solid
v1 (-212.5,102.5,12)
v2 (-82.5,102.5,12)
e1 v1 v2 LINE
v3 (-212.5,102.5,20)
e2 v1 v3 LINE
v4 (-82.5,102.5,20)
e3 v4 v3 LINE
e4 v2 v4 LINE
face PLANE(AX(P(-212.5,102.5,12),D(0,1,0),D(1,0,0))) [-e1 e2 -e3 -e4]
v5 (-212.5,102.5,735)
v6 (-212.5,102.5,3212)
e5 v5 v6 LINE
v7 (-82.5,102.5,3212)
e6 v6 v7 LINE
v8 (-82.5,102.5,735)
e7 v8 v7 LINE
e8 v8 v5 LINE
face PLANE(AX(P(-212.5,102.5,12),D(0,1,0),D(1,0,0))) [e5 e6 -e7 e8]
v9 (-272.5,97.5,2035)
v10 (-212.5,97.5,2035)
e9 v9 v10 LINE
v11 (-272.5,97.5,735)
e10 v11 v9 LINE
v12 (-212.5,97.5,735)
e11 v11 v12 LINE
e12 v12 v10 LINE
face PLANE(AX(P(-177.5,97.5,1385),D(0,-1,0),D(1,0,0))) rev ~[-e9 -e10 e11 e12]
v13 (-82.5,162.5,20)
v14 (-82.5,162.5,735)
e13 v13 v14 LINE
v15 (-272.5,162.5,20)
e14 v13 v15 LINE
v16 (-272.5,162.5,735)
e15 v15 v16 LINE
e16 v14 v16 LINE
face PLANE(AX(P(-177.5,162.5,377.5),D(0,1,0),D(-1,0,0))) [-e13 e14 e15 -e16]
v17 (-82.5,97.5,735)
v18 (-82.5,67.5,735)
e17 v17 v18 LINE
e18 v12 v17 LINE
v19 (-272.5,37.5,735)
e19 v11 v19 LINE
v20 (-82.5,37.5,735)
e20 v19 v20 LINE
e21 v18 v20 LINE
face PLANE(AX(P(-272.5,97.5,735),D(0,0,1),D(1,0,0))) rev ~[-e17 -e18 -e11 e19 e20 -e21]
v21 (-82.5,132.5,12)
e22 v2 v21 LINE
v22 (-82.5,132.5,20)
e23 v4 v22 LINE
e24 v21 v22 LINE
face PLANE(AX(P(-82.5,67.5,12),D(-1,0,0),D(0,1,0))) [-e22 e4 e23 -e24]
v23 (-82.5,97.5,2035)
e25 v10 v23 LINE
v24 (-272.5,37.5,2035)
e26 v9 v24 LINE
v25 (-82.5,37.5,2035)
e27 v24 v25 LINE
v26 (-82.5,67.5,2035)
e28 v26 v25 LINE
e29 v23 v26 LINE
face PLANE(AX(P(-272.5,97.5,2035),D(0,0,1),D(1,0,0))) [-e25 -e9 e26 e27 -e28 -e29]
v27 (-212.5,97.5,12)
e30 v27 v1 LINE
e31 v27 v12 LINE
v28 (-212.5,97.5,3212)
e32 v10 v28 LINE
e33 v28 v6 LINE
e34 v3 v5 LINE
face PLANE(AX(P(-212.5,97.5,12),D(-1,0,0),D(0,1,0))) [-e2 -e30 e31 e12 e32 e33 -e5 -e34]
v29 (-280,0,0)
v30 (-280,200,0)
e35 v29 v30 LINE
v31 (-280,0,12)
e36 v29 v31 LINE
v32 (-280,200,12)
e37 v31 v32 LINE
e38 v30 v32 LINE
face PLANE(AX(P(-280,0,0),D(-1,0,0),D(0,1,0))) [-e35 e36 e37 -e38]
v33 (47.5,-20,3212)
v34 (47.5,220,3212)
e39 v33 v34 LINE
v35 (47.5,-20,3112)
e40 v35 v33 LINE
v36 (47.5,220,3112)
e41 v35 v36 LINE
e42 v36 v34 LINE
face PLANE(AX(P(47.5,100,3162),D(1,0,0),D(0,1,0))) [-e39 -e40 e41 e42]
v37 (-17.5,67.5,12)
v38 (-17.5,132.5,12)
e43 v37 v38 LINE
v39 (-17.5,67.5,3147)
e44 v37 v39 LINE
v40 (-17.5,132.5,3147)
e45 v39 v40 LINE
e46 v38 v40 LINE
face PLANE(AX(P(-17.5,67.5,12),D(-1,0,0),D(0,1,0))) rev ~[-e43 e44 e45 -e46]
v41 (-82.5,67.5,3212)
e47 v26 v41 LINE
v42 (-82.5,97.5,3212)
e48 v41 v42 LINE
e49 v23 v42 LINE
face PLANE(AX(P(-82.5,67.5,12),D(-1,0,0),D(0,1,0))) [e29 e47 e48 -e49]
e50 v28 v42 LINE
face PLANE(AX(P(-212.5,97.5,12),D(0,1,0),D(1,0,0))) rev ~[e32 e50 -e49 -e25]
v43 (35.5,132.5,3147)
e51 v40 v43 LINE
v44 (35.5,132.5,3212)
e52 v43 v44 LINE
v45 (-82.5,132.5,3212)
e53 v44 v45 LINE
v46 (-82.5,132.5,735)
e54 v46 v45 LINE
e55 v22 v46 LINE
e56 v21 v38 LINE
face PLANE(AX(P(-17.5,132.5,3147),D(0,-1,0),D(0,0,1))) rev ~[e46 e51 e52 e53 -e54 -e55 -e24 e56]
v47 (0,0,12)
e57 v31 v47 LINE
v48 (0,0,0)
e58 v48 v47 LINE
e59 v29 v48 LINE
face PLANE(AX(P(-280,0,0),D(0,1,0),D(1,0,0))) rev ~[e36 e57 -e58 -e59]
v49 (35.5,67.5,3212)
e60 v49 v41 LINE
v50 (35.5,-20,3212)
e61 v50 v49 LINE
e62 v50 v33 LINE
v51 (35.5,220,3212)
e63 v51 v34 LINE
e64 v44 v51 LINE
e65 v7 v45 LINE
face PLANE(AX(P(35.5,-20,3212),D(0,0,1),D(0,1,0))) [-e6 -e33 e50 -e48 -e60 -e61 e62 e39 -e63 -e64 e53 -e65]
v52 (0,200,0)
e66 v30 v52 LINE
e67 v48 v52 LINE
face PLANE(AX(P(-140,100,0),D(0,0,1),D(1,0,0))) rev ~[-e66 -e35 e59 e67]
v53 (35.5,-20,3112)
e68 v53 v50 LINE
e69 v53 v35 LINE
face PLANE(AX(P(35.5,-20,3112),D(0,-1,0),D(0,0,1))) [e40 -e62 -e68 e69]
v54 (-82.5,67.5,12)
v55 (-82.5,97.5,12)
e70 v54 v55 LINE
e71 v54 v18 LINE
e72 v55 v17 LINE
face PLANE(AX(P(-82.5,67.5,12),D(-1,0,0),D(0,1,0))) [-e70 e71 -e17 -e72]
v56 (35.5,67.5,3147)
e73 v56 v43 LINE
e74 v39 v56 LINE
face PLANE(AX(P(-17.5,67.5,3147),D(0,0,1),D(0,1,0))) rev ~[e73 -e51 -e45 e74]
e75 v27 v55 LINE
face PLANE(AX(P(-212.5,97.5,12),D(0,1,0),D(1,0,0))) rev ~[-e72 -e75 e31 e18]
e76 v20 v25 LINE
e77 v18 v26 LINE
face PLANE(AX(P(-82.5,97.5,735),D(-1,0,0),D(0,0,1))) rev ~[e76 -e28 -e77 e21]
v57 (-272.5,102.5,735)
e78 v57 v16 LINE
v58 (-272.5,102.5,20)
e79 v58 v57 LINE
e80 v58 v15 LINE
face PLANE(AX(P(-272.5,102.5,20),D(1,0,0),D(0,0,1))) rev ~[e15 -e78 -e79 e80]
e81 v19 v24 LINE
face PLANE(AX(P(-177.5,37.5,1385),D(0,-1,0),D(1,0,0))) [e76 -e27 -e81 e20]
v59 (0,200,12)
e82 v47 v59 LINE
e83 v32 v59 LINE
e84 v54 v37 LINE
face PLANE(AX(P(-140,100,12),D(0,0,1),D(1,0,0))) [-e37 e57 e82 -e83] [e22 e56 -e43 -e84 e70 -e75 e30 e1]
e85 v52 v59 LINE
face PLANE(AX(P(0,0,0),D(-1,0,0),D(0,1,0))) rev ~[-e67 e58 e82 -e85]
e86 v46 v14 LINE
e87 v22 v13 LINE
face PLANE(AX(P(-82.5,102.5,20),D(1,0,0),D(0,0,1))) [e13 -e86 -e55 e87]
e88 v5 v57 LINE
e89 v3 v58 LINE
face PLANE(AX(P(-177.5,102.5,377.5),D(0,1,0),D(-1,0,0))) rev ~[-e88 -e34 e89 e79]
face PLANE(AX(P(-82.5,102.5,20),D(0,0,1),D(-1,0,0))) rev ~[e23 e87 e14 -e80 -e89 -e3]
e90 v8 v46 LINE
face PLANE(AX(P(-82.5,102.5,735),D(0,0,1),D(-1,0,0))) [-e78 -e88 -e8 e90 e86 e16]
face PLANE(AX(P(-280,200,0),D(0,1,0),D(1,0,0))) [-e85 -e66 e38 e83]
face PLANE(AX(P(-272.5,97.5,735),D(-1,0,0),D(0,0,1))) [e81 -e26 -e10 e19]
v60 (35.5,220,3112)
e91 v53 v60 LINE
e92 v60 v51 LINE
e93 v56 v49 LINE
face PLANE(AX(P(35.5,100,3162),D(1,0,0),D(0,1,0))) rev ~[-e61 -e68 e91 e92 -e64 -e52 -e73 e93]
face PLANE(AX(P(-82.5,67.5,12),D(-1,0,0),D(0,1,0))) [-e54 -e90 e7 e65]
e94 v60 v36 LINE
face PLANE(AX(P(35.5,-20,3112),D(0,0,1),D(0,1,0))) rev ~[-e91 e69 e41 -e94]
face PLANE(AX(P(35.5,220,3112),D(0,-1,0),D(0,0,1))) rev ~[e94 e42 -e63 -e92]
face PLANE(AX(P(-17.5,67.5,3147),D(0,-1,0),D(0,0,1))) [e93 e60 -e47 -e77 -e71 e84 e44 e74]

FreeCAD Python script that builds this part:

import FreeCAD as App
import Part
import Sketcher
Q = App.Units.Quantity

doc = App.newDocument("Part")
body = doc.addObject("PartDesign::Body", "Body")

# Sketch on XY plane
sketch1 = body.newObject("Sketcher::SketchObject", "Sketch")
sketch1.AttachmentSupport = (doc.getObject("XY_Plane"), [""])
sketch1.MapMode = "FlatFace"
sketch1.addGeometry(Part.LineSegment(App.Vector(-280, 200, 0), App.Vector(-280, 0, 0)), False)
sketch1.addGeometry(Part.LineSegment(App.Vector(-280, 0, 0), App.Vector(0, 0, 0)), False)
sketch1.addGeometry(Part.LineSegment(App.Vector(0, 0, 0), App.Vector(0, 200, 0)), False)
sketch1.addGeometry(Part.LineSegment(App.Vector(0, 200, 0), App.Vector(-280, 200, 0)), False)
sketch1.addConstraint(Sketcher.Constraint("Coincident", 0, 2, 1, 1))
sketch1.addConstraint(Sketcher.Constraint("Coincident", 1, 2, 2, 1))
sketch1.addConstraint(Sketcher.Constraint("Coincident", 2, 2, 3, 1))
sketch1.addConstraint(Sketcher.Constraint("Coincident", 3, 2, 0, 1))
sketch1.addConstraint(Sketcher.Constraint("Vertical", 0))
sketch1.addConstraint(Sketcher.Constraint("Horizontal", 1))
sketch1.addConstraint(Sketcher.Constraint("Vertical", 2))
sketch1.addConstraint(Sketcher.Constraint("Horizontal", 3))
sketch1.addConstraint(Sketcher.Constraint("Coincident", 1, 2, -1, 1))
sketch1.addConstraint(Sketcher.Constraint("DistanceX", 1, 1, 1, 2, Q("280 mm")))
sketch1.addConstraint(Sketcher.Constraint("DistanceY", 0, 2, 0, 1, Q("200 mm")))
pad1 = body.newObject("PartDesign::Pad", "Pad")
pad1.Profile = sketch1
pad1.Length = 12

# Sketch on XY plane
sketch2 = body.newObject("Sketcher::SketchObject", "Sketch001")
sketch2.AttachmentSupport = (doc.getObject("XY_Plane"), [""])
sketch2.MapMode = "FlatFace"
sketch2.AttachmentOffset = App.Placement(App.Vector(0, 0, 12), App.Rotation())
sketch2.addGeometry(Part.LineSegment(App.Vector(-82, 132, 0), App.Vector(-82, 68, 0)), False)
sketch2.addGeometry(Part.LineSegment(App.Vector(-82, 68, 0), App.Vector(-18, 68, 0)), False)
sketch2.addGeometry(Part.LineSegment(App.Vector(-18, 68, 0), App.Vector(-18, 132, 0)), False)
sketch2.addGeometry(Part.LineSegment(App.Vector(-18, 132, 0), App.Vector(-82, 132, 0)), False)
sketch2.addConstraint(Sketcher.Constraint("Coincident", 0, 2, 1, 1))
sketch2.addConstraint(Sketcher.Constraint("Coincident", 1, 2, 2, 1))
sketch2.addConstraint(Sketcher.Constraint("Coincident", 2, 2, 3, 1))
sketch2.addConstraint(Sketcher.Constraint("Coincident", 3, 2, 0, 1))
sketch2.addConstraint(Sketcher.Constraint("Vertical", 0))
sketch2.addConstraint(Sketcher.Constraint("Horizontal", 1))
sketch2.addConstraint(Sketcher.Constraint("Vertical", 2))
sketch2.addConstraint(Sketcher.Constraint("Horizontal", 3))
sketch2.addConstraint(Sketcher.Constraint("Equal", 3, 0))
sketch2.addConstraint(Sketcher.Constraint("DistanceX", 1, 1, 1, 2, Q("65 mm")))
sketch2.addConstraint(Sketcher.Constraint("DistanceX", 0, 2, -1, 1, Q("82.5 mm")))
sketch2.addConstraint(Sketcher.Constraint("DistanceY", -1, 1, 0, 2, Q("67.5 mm")))
pad2 = body.newObject("PartDesign::Pad", "Pad001")
pad2.Profile = sketch2
pad2.Length = 3200

# Sketch on YZ plane
sketch3 = body.newObject("Sketcher::SketchObject", "Sketch002")
sketch3.AttachmentSupport = (doc.getObject("YZ_Plane"), [""])
sketch3.MapMode = "FlatFace"
sketch3.AttachmentOffset = App.Placement(App.Vector(0, 0, -17.5), App.Rotation())
sketch3.addGeometry(Part.LineSegment(App.Vector(68, 3212, 0), App.Vector(68, 3147, 0)), False)
sketch3.addGeometry(Part.LineSegment(App.Vector(68, 3147, 0), App.Vector(132, 3147, 0)), False)
sketch3.addGeometry(Part.LineSegment(App.Vector(132, 3147, 0), App.Vector(132, 3212, 0)), False)
sketch3.addGeometry(Part.LineSegment(App.Vector(132, 3212, 0), App.Vector(68, 3212, 0)), False)
sketch3.addConstraint(Sketcher.Constraint("Coincident", 0, 2, 1, 1))
sketch3.addConstraint(Sketcher.Constraint("Coincident", 1, 2, 2, 1))
sketch3.addConstraint(Sketcher.Constraint("Coincident", 2, 2, 3, 1))
sketch3.addConstraint(Sketcher.Constraint("Coincident", 3, 2, 0, 1))
sketch3.addConstraint(Sketcher.Constraint("Vertical", 0))
sketch3.addConstraint(Sketcher.Constraint("Horizontal", 1))
sketch3.addConstraint(Sketcher.Constraint("Vertical", 2))
sketch3.addConstraint(Sketcher.Constraint("Horizontal", 3))
sketch3.addConstraint(Sketcher.Constraint("Equal", 3, 0))
sketch3.addConstraint(Sketcher.Constraint("DistanceX", 1, 1, 1, 2, Q("65 mm")))
sketch3.addConstraint(Sketcher.Constraint("DistanceY", -1, 1, 0, 2, Q("3147 mm")))
sketch3.addConstraint(Sketcher.Constraint("DistanceX", -1, 1, 0, 2, Q("67.5 mm")))
pad3 = body.newObject("PartDesign::Pad", "Pad002")
pad3.Profile = sketch3
pad3.Length = 53

# Sketch on YZ plane
sketch4 = body.newObject("Sketcher::SketchObject", "Sketch003")
sketch4.AttachmentSupport = (doc.getObject("YZ_Plane"), [""])
sketch4.MapMode = "FlatFace"
sketch4.AttachmentOffset = App.Placement(App.Vector(0, 0, 35.5), App.Rotation())
sketch4.addGeometry(Part.LineSegment(App.Vector(-20, 3212, 0), App.Vector(-20, 3112, 0)), False)
sketch4.addGeometry(Part.LineSegment(App.Vector(-20, 3112, 0), App.Vector(220, 3112, 0)), False)
sketch4.addGeometry(Part.LineSegment(App.Vector(220, 3112, 0), App.Vector(220, 3212, 0)), False)
sketch4.addGeometry(Part.LineSegment(App.Vector(220, 3212, 0), App.Vector(-20, 3212, 0)), False)
sketch4.addConstraint(Sketcher.Constraint("Coincident", 0, 2, 1, 1))
sketch4.addConstraint(Sketcher.Constraint("Coincident", 1, 2, 2, 1))
sketch4.addConstraint(Sketcher.Constraint("Coincident", 2, 2, 3, 1))
sketch4.addConstraint(Sketcher.Constraint("Coincident", 3, 2, 0, 1))
sketch4.addConstraint(Sketcher.Constraint("Vertical", 0))
sketch4.addConstraint(Sketcher.Constraint("Horizontal", 1))
sketch4.addConstraint(Sketcher.Constraint("Vertical", 2))
sketch4.addConstraint(Sketcher.Constraint("Horizontal", 3))
sketch4.addConstraint(Sketcher.Constraint("DistanceX", 1, 1, 1, 2, Q("240 mm")))
sketch4.addConstraint(Sketcher.Constraint("DistanceY", 0, 2, 0, 1, Q("100 mm")))
sketch4.addConstraint(Sketcher.Constraint("DistanceX", 0, 2, -1, 1, Q("20 mm")))
sketch4.addConstraint(Sketcher.Constraint("DistanceY", -1, 1, 0, 2, Q("3112 mm")))
pad4 = body.newObject("PartDesign::Pad", "Pad003")
pad4.Profile = sketch4
pad4.Length = 12

# Sketch on XY plane
sketch5 = body.newObject("Sketcher::SketchObject", "Sketch004")
sketch5.AttachmentSupport = (doc.getObject("XY_Plane"), [""])
sketch5.MapMode = "FlatFace"
sketch5.AttachmentOffset = App.Placement(App.Vector(0, 0, 12), App.Rotation())
sketch5.addGeometry(Part.LineSegment(App.Vector(-212, 102, 0), App.Vector(-212, 98, 0)), False)
sketch5.addGeometry(Part.LineSegment(App.Vector(-212, 98, 0), App.Vector(-82, 98, 0)), False)
sketch5.addGeometry(Part.LineSegment(App.Vector(-82, 98, 0), App.Vector(-82, 102, 0)), False)
sketch5.addGeometry(Part.LineSegment(App.Vector(-82, 102, 0), App.Vector(-212, 102, 0)), False)
sketch5.addConstraint(Sketcher.Constraint("Coincident", 0, 2, 1, 1))
sketch5.addConstraint(Sketcher.Constraint("Coincident", 1, 2, 2, 1))
sketch5.addConstraint(Sketcher.Constraint("Coincident", 2, 2, 3, 1))
sketch5.addConstraint(Sketcher.Constraint("Coincident", 3, 2, 0, 1))
sketch5.addConstraint(Sketcher.Constraint("Vertical", 0))
sketch5.addConstraint(Sketcher.Constraint("Horizontal", 1))
sketch5.addConstraint(Sketcher.Constraint("Vertical", 2))
sketch5.addConstraint(Sketcher.Constraint("Horizontal", 3))
sketch5.addConstraint(Sketcher.Constraint("DistanceX", 1, 1, 1, 2, Q("130 mm")))
sketch5.addConstraint(Sketcher.Constraint("DistanceY", 0, 2, 0, 1, Q("5 mm")))
sketch5.addConstraint(Sketcher.Constraint("DistanceX", 0, 2, -1, 1, Q("212.5 mm")))
sketch5.addConstraint(Sketcher.Constraint("DistanceY", -1, 1, 0, 2, Q("97.5 mm")))
pad5 = body.newObject("PartDesign::Pad", "Pad004")
pad5.Profile = sketch5
pad5.Length = 3200

# Sketch on XZ plane
sketch6 = body.newObject("Sketcher::SketchObject", "Sketch005")
sketch6.AttachmentSupport = (doc.getObject("XZ_Plane"), [""])
sketch6.MapMode = "FlatFace"
sketch6.AttachmentOffset = App.Placement(App.Vector(0, 0, -102.5), App.Rotation())
sketch6.addGeometry(Part.LineSegment(App.Vector(-82, 735, 0), App.Vector(-82, 20, 0)), False)
sketch6.addGeometry(Part.LineSegment(App.Vector(-82, 20, 0), App.Vector(-272, 20, 0)), False)
sketch6.addGeometry(Part.LineSegment(App.Vector(-272, 20, 0), App.Vector(-272, 735, 0)), False)
sketch6.addGeometry(Part.LineSegment(App.Vector(-272, 735, 0), App.Vector(-82, 735, 0)), False)
sketch6.addConstraint(Sketcher.Constraint("Coincident", 0, 2, 1, 1))
sketch6.addConstraint(Sketcher.Constraint("Coincident", 1, 2, 2, 1))
sketch6.addConstraint(Sketcher.Constraint("Coincident", 2, 2, 3, 1))
sketch6.addConstraint(Sketcher.Constraint("Coincident", 3, 2, 0, 1))
sketch6.addConstraint(Sketcher.Constraint("Vertical", 0))
sketch6.addConstraint(Sketcher.Constraint("Horizontal", 1))
sketch6.addConstraint(Sketcher.Constraint("Vertical", 2))
sketch6.addConstraint(Sketcher.Constraint("Horizontal", 3))
sketch6.addConstraint(Sketcher.Constraint("DistanceX", 1, 2, 1, 1, Q("190 mm")))
sketch6.addConstraint(Sketcher.Constraint("DistanceY", 0, 2, 0, 1, Q("715 mm")))
sketch6.addConstraint(Sketcher.Constraint("DistanceY", -1, 1, 0, 2, Q("20 mm")))
sketch6.addConstraint(Sketcher.Constraint("DistanceX", 0, 2, -1, 1, Q("82.5 mm")))
pad6 = body.newObject("PartDesign::Pad", "Pad005")
pad6.Profile = sketch6
pad6.Length = 60
pad6.Reversed = True

# Sketch on XZ plane
sketch7 = body.newObject("Sketcher::SketchObject", "Sketch006")
sketch7.AttachmentSupport = (doc.getObject("XZ_Plane"), [""])
sketch7.MapMode = "FlatFace"
sketch7.AttachmentOffset = App.Placement(App.Vector(0, 0, -97.5), App.Rotation())
sketch7.addGeometry(Part.LineSegment(App.Vector(-272, 2035, 0), App.Vector(-272, 735, 0)), False)
sketch7.addGeometry(Part.LineSegment(App.Vector(-272, 735, 0), App.Vector(-82, 735, 0)), False)
sketch7.addGeometry(Part.LineSegment(App.Vector(-82, 735, 0), App.Vector(-82, 2035, 0)), False)
sketch7.addGeometry(Part.LineSegment(App.Vector(-82, 2035, 0), App.Vector(-272, 2035, 0)), False)
sketch7.addConstraint(Sketcher.Constraint("Coincident", 0, 2, 1, 1))
sketch7.addConstraint(Sketcher.Constraint("Coincident", 1, 2, 2, 1))
sketch7.addConstraint(Sketcher.Constraint("Coincident", 2, 2, 3, 1))
sketch7.addConstraint(Sketcher.Constraint("Coincident", 3, 2, 0, 1))
sketch7.addConstraint(Sketcher.Constraint("Vertical", 0))
sketch7.addConstraint(Sketcher.Constraint("Horizontal", 1))
sketch7.addConstraint(Sketcher.Constraint("Vertical", 2))
sketch7.addConstraint(Sketcher.Constraint("Horizontal", 3))
sketch7.addConstraint(Sketcher.Constraint("DistanceX", 1, 1, 1, 2, Q("190 mm")))
sketch7.addConstraint(Sketcher.Constraint("DistanceY", 0, 2, 0, 1, Q("1300 mm")))
sketch7.addConstraint(Sketcher.Constraint("DistanceY", -1, 1, 0, 2, Q("735 mm")))
sketch7.addConstraint(Sketcher.Constraint("DistanceX", 0, 2, -1, 1, Q("272.5 mm")))
pad7 = body.newObject("PartDesign::Pad", "Pad006")
pad7.Profile = sketch7
pad7.Length = 60

doc.recompute()
